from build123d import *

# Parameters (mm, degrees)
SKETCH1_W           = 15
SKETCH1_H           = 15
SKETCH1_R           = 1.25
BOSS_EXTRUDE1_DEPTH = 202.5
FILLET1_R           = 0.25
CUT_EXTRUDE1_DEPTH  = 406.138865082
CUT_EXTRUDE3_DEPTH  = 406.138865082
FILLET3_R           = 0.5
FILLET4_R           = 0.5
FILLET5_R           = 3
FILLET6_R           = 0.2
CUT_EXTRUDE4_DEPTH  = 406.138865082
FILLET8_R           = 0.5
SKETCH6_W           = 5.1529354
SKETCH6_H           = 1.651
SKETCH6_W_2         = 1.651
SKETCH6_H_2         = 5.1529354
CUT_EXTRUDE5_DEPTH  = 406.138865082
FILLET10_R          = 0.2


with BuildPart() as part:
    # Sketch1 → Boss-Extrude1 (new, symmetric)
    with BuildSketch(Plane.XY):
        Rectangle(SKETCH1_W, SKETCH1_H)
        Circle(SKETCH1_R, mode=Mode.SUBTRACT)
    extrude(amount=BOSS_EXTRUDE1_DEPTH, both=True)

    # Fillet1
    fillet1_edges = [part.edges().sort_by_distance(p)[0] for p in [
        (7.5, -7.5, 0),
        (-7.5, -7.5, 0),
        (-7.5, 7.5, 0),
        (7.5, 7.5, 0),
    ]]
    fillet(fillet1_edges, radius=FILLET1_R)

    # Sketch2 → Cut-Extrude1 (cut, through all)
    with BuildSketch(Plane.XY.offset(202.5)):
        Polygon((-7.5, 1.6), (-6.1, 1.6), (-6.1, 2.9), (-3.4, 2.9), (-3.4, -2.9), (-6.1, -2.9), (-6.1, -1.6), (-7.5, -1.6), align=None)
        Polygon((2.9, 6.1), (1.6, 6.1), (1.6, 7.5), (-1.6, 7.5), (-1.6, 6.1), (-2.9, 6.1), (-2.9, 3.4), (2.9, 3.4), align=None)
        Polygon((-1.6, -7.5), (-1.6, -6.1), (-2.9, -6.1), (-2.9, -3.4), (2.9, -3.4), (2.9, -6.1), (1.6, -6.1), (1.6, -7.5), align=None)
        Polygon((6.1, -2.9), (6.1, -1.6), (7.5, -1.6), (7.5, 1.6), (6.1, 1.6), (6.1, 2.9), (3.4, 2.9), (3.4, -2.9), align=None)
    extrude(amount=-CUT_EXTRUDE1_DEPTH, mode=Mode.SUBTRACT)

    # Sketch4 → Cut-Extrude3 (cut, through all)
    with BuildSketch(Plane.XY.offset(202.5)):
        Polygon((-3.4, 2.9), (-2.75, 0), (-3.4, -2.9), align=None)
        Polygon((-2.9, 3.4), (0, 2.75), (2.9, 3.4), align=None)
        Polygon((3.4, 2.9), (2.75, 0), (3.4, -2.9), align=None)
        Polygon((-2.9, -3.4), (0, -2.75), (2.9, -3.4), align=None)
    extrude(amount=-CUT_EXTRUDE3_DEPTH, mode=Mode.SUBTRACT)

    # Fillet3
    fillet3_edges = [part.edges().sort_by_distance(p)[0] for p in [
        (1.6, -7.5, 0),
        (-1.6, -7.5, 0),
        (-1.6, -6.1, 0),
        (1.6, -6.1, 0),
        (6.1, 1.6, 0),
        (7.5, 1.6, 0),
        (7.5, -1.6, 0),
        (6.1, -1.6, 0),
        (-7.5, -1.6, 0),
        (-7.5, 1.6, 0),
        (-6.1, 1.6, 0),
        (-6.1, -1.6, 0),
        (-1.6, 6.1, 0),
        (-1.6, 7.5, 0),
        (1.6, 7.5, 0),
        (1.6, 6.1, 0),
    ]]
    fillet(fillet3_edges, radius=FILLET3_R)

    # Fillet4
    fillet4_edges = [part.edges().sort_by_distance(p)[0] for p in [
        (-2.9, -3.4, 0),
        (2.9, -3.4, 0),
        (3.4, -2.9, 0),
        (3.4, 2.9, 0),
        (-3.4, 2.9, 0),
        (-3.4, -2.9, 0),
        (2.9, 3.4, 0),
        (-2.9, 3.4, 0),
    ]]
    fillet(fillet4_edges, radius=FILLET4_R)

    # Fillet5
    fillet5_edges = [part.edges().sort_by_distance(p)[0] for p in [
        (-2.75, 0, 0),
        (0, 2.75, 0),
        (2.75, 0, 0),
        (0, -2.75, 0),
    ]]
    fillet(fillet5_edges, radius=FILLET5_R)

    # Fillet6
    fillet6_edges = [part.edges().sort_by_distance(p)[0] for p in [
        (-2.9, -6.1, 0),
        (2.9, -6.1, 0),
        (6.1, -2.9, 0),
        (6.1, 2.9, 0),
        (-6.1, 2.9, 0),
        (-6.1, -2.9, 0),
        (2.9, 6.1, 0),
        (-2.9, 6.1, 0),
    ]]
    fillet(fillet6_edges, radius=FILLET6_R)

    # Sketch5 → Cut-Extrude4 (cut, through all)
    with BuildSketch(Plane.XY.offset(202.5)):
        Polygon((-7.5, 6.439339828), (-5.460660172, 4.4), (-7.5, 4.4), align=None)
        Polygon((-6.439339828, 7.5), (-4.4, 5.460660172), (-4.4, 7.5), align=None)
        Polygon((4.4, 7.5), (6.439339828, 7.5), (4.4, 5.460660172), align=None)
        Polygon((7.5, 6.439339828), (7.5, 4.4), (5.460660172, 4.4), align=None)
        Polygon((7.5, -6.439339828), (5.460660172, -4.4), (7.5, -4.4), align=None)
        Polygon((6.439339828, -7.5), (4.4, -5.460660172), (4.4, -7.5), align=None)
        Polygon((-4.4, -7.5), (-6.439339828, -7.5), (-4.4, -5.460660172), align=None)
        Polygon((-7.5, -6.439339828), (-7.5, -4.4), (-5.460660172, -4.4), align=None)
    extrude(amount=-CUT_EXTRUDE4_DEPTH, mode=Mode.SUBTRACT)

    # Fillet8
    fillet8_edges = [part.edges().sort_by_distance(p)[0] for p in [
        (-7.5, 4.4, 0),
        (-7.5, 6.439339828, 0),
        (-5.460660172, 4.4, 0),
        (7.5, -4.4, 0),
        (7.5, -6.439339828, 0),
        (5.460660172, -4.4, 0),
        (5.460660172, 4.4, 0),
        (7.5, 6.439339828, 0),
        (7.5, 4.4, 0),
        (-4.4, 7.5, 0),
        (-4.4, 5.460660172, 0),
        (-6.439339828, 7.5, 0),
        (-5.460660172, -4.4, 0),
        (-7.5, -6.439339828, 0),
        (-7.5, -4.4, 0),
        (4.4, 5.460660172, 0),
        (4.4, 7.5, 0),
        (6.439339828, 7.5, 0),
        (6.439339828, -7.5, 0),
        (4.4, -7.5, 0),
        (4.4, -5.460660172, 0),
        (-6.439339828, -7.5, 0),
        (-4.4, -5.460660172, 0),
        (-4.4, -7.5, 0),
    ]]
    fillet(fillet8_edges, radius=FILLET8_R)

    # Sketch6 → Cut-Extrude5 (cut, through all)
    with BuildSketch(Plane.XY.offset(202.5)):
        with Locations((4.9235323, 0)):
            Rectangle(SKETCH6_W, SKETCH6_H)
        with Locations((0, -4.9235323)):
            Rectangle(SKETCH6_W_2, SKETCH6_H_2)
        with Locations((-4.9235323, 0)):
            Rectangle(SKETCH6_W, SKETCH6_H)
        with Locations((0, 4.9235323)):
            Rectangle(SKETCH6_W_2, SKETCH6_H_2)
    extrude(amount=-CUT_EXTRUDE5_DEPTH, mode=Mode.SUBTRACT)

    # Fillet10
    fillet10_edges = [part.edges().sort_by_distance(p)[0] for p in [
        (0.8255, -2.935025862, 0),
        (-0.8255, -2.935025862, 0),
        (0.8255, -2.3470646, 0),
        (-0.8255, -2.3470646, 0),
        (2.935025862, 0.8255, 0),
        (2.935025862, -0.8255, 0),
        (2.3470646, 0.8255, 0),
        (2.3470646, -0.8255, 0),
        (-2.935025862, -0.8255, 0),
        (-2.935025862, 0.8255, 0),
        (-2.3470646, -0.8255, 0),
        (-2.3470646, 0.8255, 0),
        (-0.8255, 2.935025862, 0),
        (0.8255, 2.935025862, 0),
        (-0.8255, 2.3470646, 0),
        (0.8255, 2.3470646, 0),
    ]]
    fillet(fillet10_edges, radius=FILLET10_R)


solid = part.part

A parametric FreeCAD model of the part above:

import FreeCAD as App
import Part
import Sketcher

V = App.Vector
Q = App.Units.Quantity


def edges_at(feature, points):
    """Names of the edges that pass closest to the given points."""
    edges = feature.Shape.Edges
    near = lambda p: min(range(len(edges)), key=lambda i: edges[i].distToShape(Part.Vertex(*p))[0])
    return sorted({f"Edge{near(p) + 1}" for p in points})

doc = App.newDocument("Part")
params = doc.addObject("Spreadsheet::Sheet", "Params")
for row, (alias, value) in enumerate([
    ("sketch1_diameter", "2.5 mm"),
    ("sketch1_width", "15 mm"),
    ("pad1_length", "405 mm"),
    ("fillet_radius", "0.25 mm"),
    ("sketch2_width", "1.4 mm"),
    ("sketch2_width2", "2.7 mm"),
    ("sketch2_width3", "1.3 mm"),
    ("sketch2_width4", "3.2 mm"),
    ("sketch3_width", "5.8 mm"),
    ("fillet2_radius", "0.5 mm"),
    ("fillet3_radius", "0.5 mm"),
    ("fillet4_radius", "3 mm"),
    ("fillet5_radius", "0.2 mm"),
    ("fillet6_radius", "0.5 mm"),
    ("fillet7_radius", "0.2 mm"),
], start=1):
    params.set(f"A{row}", alias)
    params.set(f"B{row}", "=" + value)
    params.setAlias(f"B{row}", alias)

body = doc.addObject("PartDesign::Body", "Body")

# Sketch on XY plane
sketch1 = doc.addObject("Sketcher::SketchObject", "Sketch")
body.addObject(sketch1)
sketch1.AttachmentSupport = (doc.XY_Plane, [""])
sketch1.MapMode = "FlatFace"
sketch1.addGeometry([
    Part.LineSegment(V(-7.5, 7.5, 0), V(-7.5, -7.5, 0)),  # 0
    Part.LineSegment(V(-7.5, -7.5, 0), V(7.5, -7.5, 0)),  # 1
    Part.LineSegment(V(7.5, -7.5, 0), V(7.5, 7.5, 0)),  # 2
    Part.LineSegment(V(7.5, 7.5, 0), V(-7.5, 7.5, 0)),  # 3
    Part.Circle(V(0, 0, 0), V(0, 0, 1), 1.2),  # 4
], False)
sketch1.addConstraint([
    Sketcher.Constraint("Coincident", 0, 2, 1, 1),
    Sketcher.Constraint("Coincident", 1, 2, 2, 1),
    Sketcher.Constraint("Coincident", 2, 2, 3, 1),
    Sketcher.Constraint("Coincident", 3, 2, 0, 1),
    Sketcher.Constraint("Vertical", 0),
    Sketcher.Constraint("Horizontal", 1),
    Sketcher.Constraint("Vertical", 2),
    Sketcher.Constraint("Horizontal", 3),
    Sketcher.Constraint("Coincident", 4, 3, -1, 1),
    Sketcher.Constraint("Symmetric", 0, 2, 2, 2, -1, 1),
    Sketcher.Constraint("Equal", 3, 0),
    Sketcher.Constraint("Diameter", 4, Q("2.5 mm")),
    Sketcher.Constraint("DistanceX", 1, 1, 1, 2, Q("15 mm")),
])
sketch1.setExpression("Constraints[11]", "Params.sketch1_diameter")
sketch1.setExpression("Constraints[12]", "Params.sketch1_width")
pad1 = doc.addObject("PartDesign::Pad", "Pad")
body.addObject(pad1)
pad1.Profile = sketch1
pad1.setExpression("Length", "Params.pad1_length")
pad1.Midplane = True
doc.recompute()

fillet = doc.addObject("PartDesign::Fillet", "Fillet")
body.addObject(fillet)
fillet.Base = (pad1, edges_at(pad1, [
    (7.5, -7.5, 0),
    (-7.5, -7.5, 0),
    (-7.5, 7.5, 0),
    (7.5, 7.5, 0),
]))
fillet.setExpression("Radius", "Params.fillet_radius")

# Sketch on XY plane
sketch2 = doc.addObject("Sketcher::SketchObject", "Sketch001")
body.addObject(sketch2)
sketch2.AttachmentSupport = (doc.XY_Plane, [""])
sketch2.MapMode = "FlatFace"
sketch2.AttachmentOffset = App.Placement(V(0, 0, 202.5), App.Rotation())
sketch2.addGeometry([
    Part.LineSegment(V(-6.1, 1.6, 0), V(-7.5, 1.6, 0)),  # 0
    Part.LineSegment(V(-7.5, 1.6, 0), V(-7.5, -1.6, 0)),  # 1
    Part.LineSegment(V(-7.5, -1.6, 0), V(-6.1, -1.6, 0)),  # 2
    Part.LineSegment(V(-6.1, -1.6, 0), V(-6.1, -2.9, 0)),  # 3
    Part.LineSegment(V(-6.1, -2.9, 0), V(-3.4, -2.9, 0)),  # 4
    Part.LineSegment(V(-3.4, -2.9, 0), V(-3.4, 2.9, 0)),  # 5
    Part.LineSegment(V(-3.4, 2.9, 0), V(-6.1, 2.9, 0)),  # 6
    Part.LineSegment(V(-6.1, 2.9, 0), V(-6.1, 1.6, 0)),  # 7
    Part.LineSegment(V(2.9, 6.1, 0), V(1.6, 6.1, 0)),  # 8
    Part.LineSegment(V(1.6, 6.1, 0), V(1.6, 7.5, 0)),  # 9
    Part.LineSegment(V(1.6, 7.5, 0), V(-1.6, 7.5, 0)),  # 10
    Part.LineSegment(V(-1.6, 7.5, 0), V(-1.6, 6.1, 0)),  # 11
    Part.LineSegment(V(-1.6, 6.1, 0), V(-2.9, 6.1, 0)),  # 12
    Part.LineSegment(V(-2.9, 6.1, 0), V(-2.9, 3.4, 0)),  # 13
    Part.LineSegment(V(-2.9, 3.4, 0), V(2.9, 3.4, 0)),  # 14
    Part.LineSegment(V(2.9, 3.4, 0), V(2.9, 6.1, 0)),  # 15
    Part.LineSegment(V(-1.6, -6.1, 0), V(-1.6, -7.5, 0)),  # 16
    Part.LineSegment(V(-1.6, -7.5, 0), V(1.6, -7.5, 0)),  # 17
    Part.LineSegment(V(1.6, -7.5, 0), V(1.6, -6.1, 0)),  # 18
    Part.LineSegment(V(1.6, -6.1, 0), V(2.9, -6.1, 0)),  # 19
    Part.LineSegment(V(2.9, -6.1, 0), V(2.9, -3.4, 0)),  # 20
    Part.LineSegment(V(2.9, -3.4, 0), V(-2.9, -3.4, 0)),  # 21
    Part.LineSegment(V(-2.9, -3.4, 0), V(-2.9, -6.1, 0)),  # 22
    Part.LineSegment(V(-2.9, -6.1, 0), V(-1.6, -6.1, 0)),  # 23
    Part.LineSegment(V(6.1, -2.9, 0), V(6.1, -1.6, 0)),  # 24
    Part.LineSegment(V(6.1, -1.6, 0), V(7.5, -1.6, 0)),  # 25
    Part.LineSegment(V(7.5, -1.6, 0), V(7.5, 1.6, 0)),  # 26
    Part.LineSegment(V(7.5, 1.6, 0), V(6.1, 1.6, 0)),  # 27
    Part.LineSegment(V(6.1, 1.6, 0), V(6.1, 2.9, 0)),  # 28
    Part.LineSegment(V(6.1, 2.9, 0), V(3.4, 2.9, 0)),  # 29
    Part.LineSegment(V(3.4, 2.9, 0), V(3.4, -2.9, 0)),  # 30
    Part.LineSegment(V(3.4, -2.9, 0), V(6.1, -2.9, 0)),  # 31
], False)
sketch2.addConstraint([
    Sketcher.Constraint("Coincident", 0, 2, 1, 1),
    Sketcher.Constraint("Coincident", 1, 2, 2, 1),
    Sketcher.Constraint("Coincident", 2, 2, 3, 1),
    Sketcher.Constraint("Coincident", 3, 2, 4, 1),
    Sketcher.Constraint("Coincident", 4, 2, 5, 1),
    Sketcher.Constraint("Coincident", 5, 2, 6, 1),
    Sketcher.Constraint("Coincident", 6, 2, 7, 1),
    Sketcher.Constraint("Coincident", 7, 2, 0, 1),
    Sketcher.Constraint("Coincident", 8, 2, 9, 1),
    Sketcher.Constraint("Coincident", 9, 2, 10, 1),
    Sketcher.Constraint("Coincident", 10, 2, 11, 1),
    Sketcher.Constraint("Coincident", 11, 2, 12, 1),
    Sketcher.Constraint("Coincident", 12, 2, 13, 1),
    Sketcher.Constraint("Coincident", 13, 2, 14, 1),
    Sketcher.Constraint("Coincident", 14, 2, 15, 1),
    Sketcher.Constraint("Coincident", 15, 2, 8, 1),
    Sketcher.Constraint("Coincident", 16, 2, 17, 1),
    Sketcher.Constraint("Coincident", 17, 2, 18, 1),
    Sketcher.Constraint("Coincident", 18, 2, 19, 1),
    Sketcher.Constraint("Coincident", 19, 2, 20, 1),
    Sketcher.Constraint("Coincident", 20, 2, 21, 1),
    Sketcher.Constraint("Coincident", 21, 2, 22, 1),
    Sketcher.Constraint("Coincident", 22, 2, 23, 1),
    Sketcher.Constraint("Coincident", 23, 2, 16, 1),
    Sketcher.Constraint("Coincident", 24, 2, 25, 1),
    Sketcher.Constraint("Coincident", 25, 2, 26, 1),
    Sketcher.Constraint("Coincident", 26, 2, 27, 1),
    Sketcher.Constraint("Coincident", 27, 2, 28, 1),
    Sketcher.Constraint("Coincident", 28, 2, 29, 1),
    Sketcher.Constraint("Coincident", 29, 2, 30, 1),
    Sketcher.Constraint("Coincident", 30, 2, 31, 1),
    Sketcher.Constraint("Coincident", 31, 2, 24, 1),
    Sketcher.Constraint("Horizontal", 0),
    Sketcher.Constraint("Vertical", 1),
    Sketcher.Constraint("Horizontal", 2),
    Sketcher.Constraint("Vertical", 3),
    Sketcher.Constraint("Horizontal", 4),
    Sketcher.Constraint("Vertical", 5),
    Sketcher.Constraint("Horizontal", 6),
    Sketcher.Constraint("Vertical", 7),
    Sketcher.Constraint("Horizontal", 8),
    Sketcher.Constraint("Vertical", 9),
    Sketcher.Constraint("Horizontal", 10),
    Sketcher.Constraint("Vertical", 11),
    Sketcher.Constraint("Horizontal", 12),
    Sketcher.Constraint("Vertical", 13),
    Sketcher.Constraint("Horizontal", 14),
    Sketcher.Constraint("Vertical", 15),
    Sketcher.Constraint("Vertical", 16),
    Sketcher.Constraint("Horizontal", 17),
    Sketcher.Constraint("Vertical", 18),
    Sketcher.Constraint("Horizontal", 19),
    Sketcher.Constraint("Vertical", 20),
    Sketcher.Constraint("Horizontal", 21),
    Sketcher.Constraint("Vertical", 22),
    Sketcher.Constraint("Horizontal", 23),
    Sketcher.Constraint("Vertical", 24),
    Sketcher.Constraint("Horizontal", 25),
    Sketcher.Constraint("Vertical", 26),
    Sketcher.Constraint("Horizontal", 27),
    Sketcher.Constraint("Vertical", 28),
    Sketcher.Constraint("Horizontal", 29),
    Sketcher.Constraint("Vertical", 30),
    Sketcher.Constraint("Horizontal", 31),
    Sketcher.Constraint("Symmetric", 9, 2, 16, 2, -1, 1),
    Sketcher.Constraint("Symmetric", 11, 2, 18, 2, -1, 1),
    Sketcher.Constraint("Symmetric", 13, 2, 20, 2, -1, 1),
    Sketcher.Constraint("Symmetric", 15, 2, 22, 2, -1, 1),
    Sketcher.Constraint("Symmetric", 7, 2, 24, 2, -1, 1),
    Sketcher.Constraint("Symmetric", 1, 2, 26, 2, -1, 1),
    Sketcher.Constraint("Symmetric", 3, 2, 28, 2, -1, 1),
    Sketcher.Constraint("Symmetric", 5, 2, 30, 2, -1, 1),
    Sketcher.Constraint("Symmetric", 8, 2, 11, 2, -2),
    Sketcher.Constraint("Symmetric", 2, 2, 24, 2, -2),
    Sketcher.Constraint("Horizontal", 6, 2, 28, 2),
    Sketcher.Constraint("Vertical", 15, 2, 19, 2),
    Sketcher.Constraint("Equal", 17, 1),
    Sketcher.Constraint("Equal", 23, 3),
    Sketcher.Constraint("Equal", 27, 9),
    Sketcher.Constraint("Equal", 31, 13),
    Sketcher.Constraint("DistanceX", 0, 2, 0, 1, Q("1.4 mm")),
    Sketcher.Constraint("DistanceX", 4, 1, 4, 2, Q("2.7 mm")),
    Sketcher.Constraint("DistanceX", 8, 2, 8, 1, Q("1.3 mm")),
    Sketcher.Constraint("DistanceX", 10, 2, 10, 1, Q("3.2 mm")),
    Sketcher.Constraint("DistanceX", 5, 2, 8, 2, Q("5 mm")),
    Sketcher.Constraint("DistanceY", 4, 2, 8, 2, Q("9 mm")),
])
sketch2.setExpression("Constraints[80]", "Params.sketch2_width")
sketch2.setExpression("Constraints[81]", "Params.sketch2_width2")
sketch2.setExpression("Constraints[82]", "Params.sketch2_width3")
sketch2.setExpression("Constraints[83]", "Params.sketch2_width4")
pocket1 = doc.addObject("PartDesign::Pocket", "Pocket")
body.addObject(pocket1)
pocket1.Profile = sketch2
pocket1.Type = "ThroughAll"

# Sketch on XY plane
sketch3 = doc.addObject("Sketcher::SketchObject", "Sketch002")
body.addObject(sketch3)
sketch3.AttachmentSupport = (doc.XY_Plane, [""])
sketch3.MapMode = "FlatFace"
sketch3.AttachmentOffset = App.Placement(V(0, 0, 202.5), App.Rotation())
sketch3.addGeometry([
    Part.LineSegment(V(-2.8, 0, 0), V(-3.4, 2.9, 0)),  # 0
    Part.LineSegment(V(-3.4, 2.9, 0), V(-3.4, -2.9, 0)),  # 1
    Part.LineSegment(V(-3.4, -2.9, 0), V(-2.8, 0, 0)),  # 2
    Part.LineSegment(V(-2.9, 3.4, 0), V(0, 2.8, 0)),  # 3
    Part.LineSegment(V(0, 2.8, 0), V(2.9, 3.4, 0)),  # 4
    Part.LineSegment(V(2.9, 3.4, 0), V(-2.9, 3.4, 0)),  # 5
    Part.LineSegment(V(3.4, 2.9, 0), V(2.8, 0, 0)),  # 6
    Part.LineSegment(V(2.8, 0, 0), V(3.4, -2.9, 0)),  # 7
    Part.LineSegment(V(3.4, -2.9, 0), V(3.4, 2.9, 0)),  # 8
    Part.LineSegment(V(0, -2.8, 0), V(-2.9, -3.4, 0)),  # 9
    Part.LineSegment(V(-2.9, -3.4, 0), V(2.9, -3.4, 0)),  # 10
    Part.LineSegment(V(2.9, -3.4, 0), V(0, -2.8, 0)),  # 11
], False)
sketch3.addConstraint([
    Sketcher.Constraint("Coincident", 0, 2, 1, 1),
    Sketcher.Constraint("Coincident", 1, 2, 2, 1),
    Sketcher.Constraint("Coincident", 2, 2, 0, 1),
    Sketcher.Constraint("Coincident", 3, 2, 4, 1),
    Sketcher.Constraint("Coincident", 4, 2, 5, 1),
    Sketcher.Constraint("Coincident", 5, 2, 3, 1),
    Sketcher.Constraint("Coincident", 6, 2, 7, 1),
    Sketcher.Constraint("Coincident", 7, 2, 8, 1),
    Sketcher.Constraint("Coincident", 8, 2, 6, 1),
    Sketcher.Constraint("Coincident", 9, 2, 10, 1),
    Sketcher.Constraint("Coincident", 10, 2, 11, 1),
    Sketcher.Constraint("Coincident", 11, 2, 9, 1),
    Sketcher.Constraint("Vertical", 1),
    Sketcher.Constraint("Horizontal", 5),
    Sketcher.Constraint("Vertical", 8),
    Sketcher.Constraint("Horizontal", 10),
    Sketcher.Constraint("Symmetric", 2, 2, 6, 2, -1, 1),
    Sketcher.Constraint("Symmetric", 0, 2, 7, 2, -1, 1),
    Sketcher.Constraint("Symmetric", 4, 2, 9, 2, -1, 1),
    Sketcher.Constraint("Symmetric", 3, 2, 11, 2, -1, 1),
    Sketcher.Constraint("PointOnObject", 2, 2, -1),
    Sketcher.Constraint("PointOnObject", 3, 2, -2),
    Sketcher.Constraint("Perpendicular", 2, 3),
    Sketcher.Constraint("Perpendicular", 0, 4),
    Sketcher.Constraint("Perpendicular", 3, 6),
    Sketcher.Constraint("Perpendicular", 6, 11),
    Sketcher.Constraint("Horizontal", 1, 2, 7, 2),
    Sketcher.Constraint("Equal", 10, 1),
    Sketcher.Constraint("DistanceX", 5, 2, 5, 1, Q("5.8 mm")),
    Sketcher.Constraint("DistanceX", 0, 2, -1, 1, Q("3.4 mm")),
    Sketcher.Constraint("DistanceY", -1, 1, 4, 2, Q("3.4 mm")),
    Sketcher.Constraint("DistanceX", 2, 2, 6, 2, Q("5.5 mm")),
])
sketch3.setExpression("Constraints[28]", "Params.sketch3_width")
pocket2 = doc.addObject("PartDesign::Pocket", "Pocket001")
body.addObject(pocket2)
pocket2.Profile = sketch3
pocket2.Type = "ThroughAll"
doc.recompute()

fillet2 = doc.addObject("PartDesign::Fillet", "Fillet001")
body.addObject(fillet2)
fillet2.Base = (pocket2, edges_at(pocket2, [
    (1.6, -7.5, 0),
    (-1.6, -7.5, 0),
    (-1.6, -6.1, 0),
    (1.6, -6.1, 0),
    (6.1, 1.6, 0),
    (7.5, 1.6, 0),
    (7.5, -1.6, 0),
    (6.1, -1.6, 0),
    (-7.5, -1.6, 0),
    (-7.5, 1.6, 0),
    (-6.1, 1.6, 0),
    (-6.1, -1.6, 0),
    (-1.6, 6.1, 0),
    (-1.6, 7.5, 0),
    (1.6, 7.5, 0),
    (1.6, 6.1, 0),
]))
fillet2.setExpression("Radius", "Params.fillet2_radius")
doc.recompute()

fillet3 = doc.addObject("PartDesign::Fillet", "Fillet002")
body.addObject(fillet3)
fillet3.Base = (fillet2, edges_at(fillet2, [
    (-2.9, -3.4, 0),
    (2.9, -3.4, 0),
    (3.4, -2.9, 0),
    (3.4, 2.9, 0),
    (-3.4, 2.9, 0),
    (-3.4, -2.9, 0),
    (2.9, 3.4, 0),
    (-2.9, 3.4, 0),
]))
fillet3.setExpression("Radius", "Params.fillet3_radius")
doc.recompute()

fillet4 = doc.addObject("PartDesign::Fillet", "Fillet003")
body.addObject(fillet4)
fillet4.Base = (fillet3, edges_at(fillet3, [
    (-2.75, 0, 0),
    (0, 2.75, 0),
    (2.75, 0, 0),
    (0, -2.75, 0),
]))
fillet4.setExpression("Radius", "Params.fillet4_radius")
doc.recompute()

fillet5 = doc.addObject("PartDesign::Fillet", "Fillet004")
body.addObject(fillet5)
fillet5.Base = (fillet4, edges_at(fillet4, [
    (-2.9, -6.1, 0),
    (2.9, -6.1, 0),
    (6.1, -2.9, 0),
    (6.1, 2.9, 0),
    (-6.1, 2.9, 0),
    (-6.1, -2.9, 0),
    (2.9, 6.1, 0),
    (-2.9, 6.1, 0),
]))
fillet5.setExpression("Radius", "Params.fillet5_radius")

# Sketch on XY plane
sketch4 = doc.addObject("Sketcher::SketchObject", "Sketch003")
body.addObject(sketch4)
sketch4.AttachmentSupport = (doc.XY_Plane, [""])
sketch4.MapMode = "FlatFace"
sketch4.AttachmentOffset = App.Placement(V(0, 0, 202.5), App.Rotation())
sketch4.addGeometry([
    Part.LineSegment(V(-5.5, 4.4, 0), V(-7.5, 6.4, 0)),  # 0
    Part.LineSegment(V(-7.5, 6.4, 0), V(-7.5, 4.4, 0)),  # 1
    Part.LineSegment(V(-7.5, 4.4, 0), V(-5.5, 4.4, 0)),  # 2
    Part.LineSegment(V(-6.4, 7.5, 0), V(-4.4, 5.5, 0)),  # 3
    Part.LineSegment(V(-4.4, 5.5, 0), V(-4.4, 7.5, 0)),  # 4
    Part.LineSegment(V(-4.4, 7.5, 0), V(-6.4, 7.5, 0)),  # 5
    Part.LineSegment(V(6.4, 7.5, 0), V(4.4, 7.5, 0)),  # 6
    Part.LineSegment(V(4.4, 7.5, 0), V(4.4, 5.5, 0)),  # 7
    Part.LineSegment(V(4.4, 5.5, 0), V(6.4, 7.5, 0)),  # 8
    Part.LineSegment(V(7.5, 4.4, 0), V(7.5, 6.4, 0)),  # 9
    Part.LineSegment(V(7.5, 6.4, 0), V(5.5, 4.4, 0)),  # 10
    Part.LineSegment(V(5.5, 4.4, 0), V(7.5, 4.4, 0)),  # 11
    Part.LineSegment(V(5.5, -4.4, 0), V(7.5, -6.4, 0)),  # 12
    Part.LineSegment(V(7.5, -6.4, 0), V(7.5, -4.4, 0)),  # 13
    Part.LineSegment(V(7.5, -4.4, 0), V(5.5, -4.4, 0)),  # 14
    Part.LineSegment(V(6.4, -7.5, 0), V(4.4, -5.5, 0)),  # 15
    Part.LineSegment(V(4.4, -5.5, 0), V(4.4, -7.5, 0)),  # 16
    Part.LineSegment(V(4.4, -7.5, 0), V(6.4, -7.5, 0)),  # 17
    Part.LineSegment(V(-6.4, -7.5, 0), V(-4.4, -7.5, 0)),  # 18
    Part.LineSegment(V(-4.4, -7.5, 0), V(-4.4, -5.5, 0)),  # 19
    Part.LineSegment(V(-4.4, -5.5, 0), V(-6.4, -7.5, 0)),  # 20
    Part.LineSegment(V(-7.5, -4.4, 0), V(-7.5, -6.4, 0)),  # 21
    Part.LineSegment(V(-7.5, -6.4, 0), V(-5.5, -4.4, 0)),  # 22
    Part.LineSegment(V(-5.5, -4.4, 0), V(-7.5, -4.4, 0)),  # 23
], False)
sketch4.addConstraint([
    Sketcher.Constraint("Coincident", 0, 2, 1, 1),
    Sketcher.Constraint("Coincident", 1, 2, 2, 1),
    Sketcher.Constraint("Coincident", 2, 2, 0, 1),
    Sketcher.Constraint("Coincident", 3, 2, 4, 1),
    Sketcher.Constraint("Coincident", 4, 2, 5, 1),
    Sketcher.Constraint("Coincident", 5, 2, 3, 1),
    Sketcher.Constraint("Coincident", 6, 2, 7, 1),
    Sketcher.Constraint("Coincident", 7, 2, 8, 1),
    Sketcher.Constraint("Coincident", 8, 2, 6, 1),
    Sketcher.Constraint("Coincident", 9, 2, 10, 1),
    Sketcher.Constraint("Coincident", 10, 2, 11, 1),
    Sketcher.Constraint("Coincident", 11, 2, 9, 1),
    Sketcher.Constraint("Coincident", 12, 2, 13, 1),
    Sketcher.Constraint("Coincident", 13, 2, 14, 1),
    Sketcher.Constraint("Coincident", 14, 2, 12, 1),
    Sketcher.Constraint("Coincident", 15, 2, 16, 1),
    Sketcher.Constraint("Coincident", 16, 2, 17, 1),
    Sketcher.Constraint("Coincident", 17, 2, 15, 1),
    Sketcher.Constraint("Coincident", 18, 2, 19, 1),
    Sketcher.Constraint("Coincident", 19, 2, 20, 1),
    Sketcher.Constraint("Coincident", 20, 2, 18, 1),
    Sketcher.Constraint("Coincident", 21, 2, 22, 1),
    Sketcher.Constraint("Coincident", 22, 2, 23, 1),
    Sketcher.Constraint("Coincident", 23, 2, 21, 1),
    Sketcher.Constraint("Vertical", 1),
    Sketcher.Constraint("Horizontal", 2),
    Sketcher.Constraint("Vertical", 4),
    Sketcher.Constraint("Horizontal", 5),
    Sketcher.Constraint("Horizontal", 6),
    Sketcher.Constraint("Vertical", 7),
    Sketcher.Constraint("Vertical", 9),
    Sketcher.Constraint("Horizontal", 11),
    Sketcher.Constraint("Vertical", 13),
    Sketcher.Constraint("Horizontal", 14),
    Sketcher.Constraint("Vertical", 16),
    Sketcher.Constraint("Horizontal", 17),
    Sketcher.Constraint("Horizontal", 18),
    Sketcher.Constraint("Vertical", 19),
    Sketcher.Constraint("Vertical", 21),
    Sketcher.Constraint("Horizontal", 23),
    Sketcher.Constraint("Symmetric", 0, 2, 12, 2, -1, 1),
    Sketcher.Constraint("Symmetric", 2, 2, 14, 2, -1, 1),
    Sketcher.Constraint("Symmetric", 3, 2, 15, 2, -1, 1),
    Sketcher.Constraint("Symmetric", 5, 2, 17, 2, -1, 1),
    Sketcher.Constraint("Symmetric", 6, 2, 18, 2, -1, 1),
    Sketcher.Constraint("Symmetric", 9, 2, 21, 2, -1, 1),
    Sketcher.Constraint("Symmetric", 10, 2, 22, 2, -1, 1),
    Sketcher.Constraint("Symmetric", 4, 2, 6, 2, -2),
    Sketcher.Constraint("Symmetric", 0, 2, 9, 2, -2),
    Sketcher.Constraint("Symmetric", 2, 2, 10, 2, -2),
    Sketcher.Constraint("Parallel", 0, 3),
    Sketcher.Constraint("Perpendicular", 3, 8),
    Sketcher.Constraint("Parallel", 8, 10),
    Sketcher.Constraint("Perpendicular", 15, 20),
    Sketcher.Constraint("Horizontal", 3, 2, 7, 2),
    Sketcher.Constraint("Horizontal", 15, 2, 19, 2),
    Sketcher.Constraint("Equal", 2, 5),
    Sketcher.Constraint("DistanceX", 0, 2, -1, 1, Q("7.5 mm")),
    Sketcher.Constraint("DistanceY", -1, 1, 1, 2, Q("4.4 mm")),
    Sketcher.Constraint("DistanceX", 3, 2, -1, 1, Q("4.4 mm")),
    Sketcher.Constraint("DistanceY", -1, 1, 4, 2, Q("7.5 mm")),
    Sketcher.Constraint("DistanceX", 2, 1, 2, 2, Q("2.03934 mm")),
])
pocket3 = doc.addObject("PartDesign::Pocket", "Pocket002")
body.addObject(pocket3)
pocket3.Profile = sketch4
pocket3.Type = "ThroughAll"
doc.recompute()

fillet6 = doc.addObject("PartDesign::Fillet", "Fillet005")
body.addObject(fillet6)
fillet6.Base = (pocket3, edges_at(pocket3, [
    (-7.5, 4.4, 0),
    (-7.5, 6.439, 0),
    (-5.461, 4.4, 0),
    (7.5, -4.4, 0),
    (7.5, -6.439, 0),
    (5.461, -4.4, 0),
    (5.461, 4.4, 0),
    (7.5, 6.439, 0),
    (7.5, 4.4, 0),
    (-4.4, 7.5, 0),
    (-4.4, 5.461, 0),
    (-6.439, 7.5, 0),
    (-5.461, -4.4, 0),
    (-7.5, -6.439, 0),
    (-7.5, -4.4, 0),
    (4.4, 5.461, 0),
    (4.4, 7.5, 0),
    (6.439, 7.5, 0),
    (6.439, -7.5, 0),
    (4.4, -7.5, 0),
    (4.4, -5.461, 0),
    (-6.439, -7.5, 0),
    (-4.4, -5.461, 0),
    (-4.4, -7.5, 0),
]))
fillet6.setExpression("Radius", "Params.fillet6_radius")

# Sketch on XY plane
sketch5 = doc.addObject("Sketcher::SketchObject", "Sketch004")
body.addObject(sketch5)
sketch5.AttachmentSupport = (doc.XY_Plane, [""])
sketch5.MapMode = "FlatFace"
sketch5.AttachmentOffset = App.Placement(V(0, 0, 202.5), App.Rotation())
sketch5.addGeometry([
    Part.LineSegment(V(2.3, 0.8, 0), V(2.3, -0.8, 0)),  # 0
    Part.LineSegment(V(2.3, -0.8, 0), V(7.5, -0.8, 0)),  # 1
    Part.LineSegment(V(7.5, -0.8, 0), V(7.5, 0.8, 0)),  # 2
    Part.LineSegment(V(7.5, 0.8, 0), V(2.3, 0.8, 0)),  # 3
    Part.LineSegment(V(-0.8, -2.3, 0), V(-0.8, -7.5, 0)),  # 4
    Part.LineSegment(V(-0.8, -7.5, 0), V(0.8, -7.5, 0)),  # 5
    Part.LineSegment(V(0.8, -7.5, 0), V(0.8, -2.3, 0)),  # 6
    Part.LineSegment(V(0.8, -2.3, 0), V(-0.8, -2.3, 0)),  # 7
    Part.LineSegment(V(-7.5, 0.8, 0), V(-7.5, -0.8, 0)),  # 8
    Part.LineSegment(V(-7.5, -0.8, 0), V(-2.3, -0.8, 0)),  # 9
    Part.LineSegment(V(-2.3, -0.8, 0), V(-2.3, 0.8, 0)),  # 10
    Part.LineSegment(V(-2.3, 0.8, 0), V(-7.5, 0.8, 0)),  # 11
    Part.LineSegment(V(-0.8, 7.5, 0), V(-0.8, 2.3, 0)),  # 12
    Part.LineSegment(V(-0.8, 2.3, 0), V(0.8, 2.3, 0)),  # 13
    Part.LineSegment(V(0.8, 2.3, 0), V(0.8, 7.5, 0)),  # 14
    Part.LineSegment(V(0.8, 7.5, 0), V(-0.8, 7.5, 0)),  # 15
], False)
sketch5.addConstraint([
    Sketcher.Constraint("Coincident", 0, 2, 1, 1),
    Sketcher.Constraint("Coincident", 1, 2, 2, 1),
    Sketcher.Constraint("Coincident", 2, 2, 3, 1),
    Sketcher.Constraint("Coincident", 3, 2, 0, 1),
    Sketcher.Constraint("Coincident", 4, 2, 5, 1),
    Sketcher.Constraint("Coincident", 5, 2, 6, 1),
    Sketcher.Constraint("Coincident", 6, 2, 7, 1),
    Sketcher.Constraint("Coincident", 7, 2, 4, 1),
    Sketcher.Constraint("Coincident", 8, 2, 9, 1),
    Sketcher.Constraint("Coincident", 9, 2, 10, 1),
    Sketcher.Constraint("Coincident", 10, 2, 11, 1),
    Sketcher.Constraint("Coincident", 11, 2, 8, 1),
    Sketcher.Constraint("Coincident", 12, 2, 13, 1),
    Sketcher.Constraint("Coincident", 13, 2, 14, 1),
    Sketcher.Constraint("Coincident", 14, 2, 15, 1),
    Sketcher.Constraint("Coincident", 15, 2, 12, 1),
    Sketcher.Constraint("Vertical", 0),
    Sketcher.Constraint("Horizontal", 1),
    Sketcher.Constraint("Vertical", 2),
    Sketcher.Constraint("Horizontal", 3),
    Sketcher.Constraint("Vertical", 4),
    Sketcher.Constraint("Horizontal", 5),
    Sketcher.Constraint("Vertical", 6),
    Sketcher.Constraint("Horizontal", 7),
    Sketcher.Constraint("Vertical", 8),
    Sketcher.Constraint("Horizontal", 9),
    Sketcher.Constraint("Vertical", 10),
    Sketcher.Constraint("Horizontal", 11),
    Sketcher.Constraint("Vertical", 12),
    Sketcher.Constraint("Horizontal", 13),
    Sketcher.Constraint("Vertical", 14),
    Sketcher.Constraint("Horizontal", 15),
    Sketcher.Constraint("Symmetric", 2, 2, 8, 2, -1, 1),
    Sketcher.Constraint("Symmetric", 0, 2, 10, 2, -1, 1),
    Sketcher.Constraint("Symmetric", 6, 2, 12, 2, -1, 1),
    Sketcher.Constraint("Symmetric", 4, 2, 14, 2, -1, 1),
    Sketcher.Constraint("Horizontal", 1, 2, 8, 2),
    Sketcher.Constraint("Vertical", 7, 2, 12, 2),
    Sketcher.Constraint("Equal", 15, 0),
    Sketcher.Constraint("Equal", 11, 4),
    Sketcher.Constraint("DistanceX", -1, 1, 1, 2, Q("7.5 mm")),
    Sketcher.Constraint("DistanceY", 4, 2, -1, 1, Q("7.5 mm")),
    Sketcher.Constraint("DistanceX", 5, 1, 5, 2, Q("1.651 mm")),
    Sketcher.Constraint("DistanceX", 1, 1, 1, 2, Q("5.152935 mm")),
])
pocket4 = doc.addObject("PartDesign::Pocket", "Pocket003")
body.addObject(pocket4)
pocket4.Profile = sketch5
pocket4.Type = "ThroughAll"
doc.recompute()

fillet7 = doc.addObject("PartDesign::Fillet", "Fillet006")
body.addObject(fillet7)
fillet7.Base = (pocket4, edges_at(pocket4, [
    (0.826, -2.935, 0),
    (-0.826, -2.935, 0),
    (0.826, -2.347, 0),
    (-0.826, -2.347, 0),
    (2.935, 0.826, 0),
    (2.935, -0.826, 0),
    (2.347, 0.826, 0),
    (2.347, -0.826, 0),
    (-2.935, -0.826, 0),
    (-2.935, 0.826, 0),
    (-2.347, -0.826, 0),
    (-2.347, 0.826, 0),
    (-0.826, 2.935, 0),
    (0.826, 2.935, 0),
    (-0.826, 2.347, 0),
    (0.826, 2.347, 0),
]))
fillet7.setExpression("Radius", "Params.fillet7_radius")

doc.recompute()
